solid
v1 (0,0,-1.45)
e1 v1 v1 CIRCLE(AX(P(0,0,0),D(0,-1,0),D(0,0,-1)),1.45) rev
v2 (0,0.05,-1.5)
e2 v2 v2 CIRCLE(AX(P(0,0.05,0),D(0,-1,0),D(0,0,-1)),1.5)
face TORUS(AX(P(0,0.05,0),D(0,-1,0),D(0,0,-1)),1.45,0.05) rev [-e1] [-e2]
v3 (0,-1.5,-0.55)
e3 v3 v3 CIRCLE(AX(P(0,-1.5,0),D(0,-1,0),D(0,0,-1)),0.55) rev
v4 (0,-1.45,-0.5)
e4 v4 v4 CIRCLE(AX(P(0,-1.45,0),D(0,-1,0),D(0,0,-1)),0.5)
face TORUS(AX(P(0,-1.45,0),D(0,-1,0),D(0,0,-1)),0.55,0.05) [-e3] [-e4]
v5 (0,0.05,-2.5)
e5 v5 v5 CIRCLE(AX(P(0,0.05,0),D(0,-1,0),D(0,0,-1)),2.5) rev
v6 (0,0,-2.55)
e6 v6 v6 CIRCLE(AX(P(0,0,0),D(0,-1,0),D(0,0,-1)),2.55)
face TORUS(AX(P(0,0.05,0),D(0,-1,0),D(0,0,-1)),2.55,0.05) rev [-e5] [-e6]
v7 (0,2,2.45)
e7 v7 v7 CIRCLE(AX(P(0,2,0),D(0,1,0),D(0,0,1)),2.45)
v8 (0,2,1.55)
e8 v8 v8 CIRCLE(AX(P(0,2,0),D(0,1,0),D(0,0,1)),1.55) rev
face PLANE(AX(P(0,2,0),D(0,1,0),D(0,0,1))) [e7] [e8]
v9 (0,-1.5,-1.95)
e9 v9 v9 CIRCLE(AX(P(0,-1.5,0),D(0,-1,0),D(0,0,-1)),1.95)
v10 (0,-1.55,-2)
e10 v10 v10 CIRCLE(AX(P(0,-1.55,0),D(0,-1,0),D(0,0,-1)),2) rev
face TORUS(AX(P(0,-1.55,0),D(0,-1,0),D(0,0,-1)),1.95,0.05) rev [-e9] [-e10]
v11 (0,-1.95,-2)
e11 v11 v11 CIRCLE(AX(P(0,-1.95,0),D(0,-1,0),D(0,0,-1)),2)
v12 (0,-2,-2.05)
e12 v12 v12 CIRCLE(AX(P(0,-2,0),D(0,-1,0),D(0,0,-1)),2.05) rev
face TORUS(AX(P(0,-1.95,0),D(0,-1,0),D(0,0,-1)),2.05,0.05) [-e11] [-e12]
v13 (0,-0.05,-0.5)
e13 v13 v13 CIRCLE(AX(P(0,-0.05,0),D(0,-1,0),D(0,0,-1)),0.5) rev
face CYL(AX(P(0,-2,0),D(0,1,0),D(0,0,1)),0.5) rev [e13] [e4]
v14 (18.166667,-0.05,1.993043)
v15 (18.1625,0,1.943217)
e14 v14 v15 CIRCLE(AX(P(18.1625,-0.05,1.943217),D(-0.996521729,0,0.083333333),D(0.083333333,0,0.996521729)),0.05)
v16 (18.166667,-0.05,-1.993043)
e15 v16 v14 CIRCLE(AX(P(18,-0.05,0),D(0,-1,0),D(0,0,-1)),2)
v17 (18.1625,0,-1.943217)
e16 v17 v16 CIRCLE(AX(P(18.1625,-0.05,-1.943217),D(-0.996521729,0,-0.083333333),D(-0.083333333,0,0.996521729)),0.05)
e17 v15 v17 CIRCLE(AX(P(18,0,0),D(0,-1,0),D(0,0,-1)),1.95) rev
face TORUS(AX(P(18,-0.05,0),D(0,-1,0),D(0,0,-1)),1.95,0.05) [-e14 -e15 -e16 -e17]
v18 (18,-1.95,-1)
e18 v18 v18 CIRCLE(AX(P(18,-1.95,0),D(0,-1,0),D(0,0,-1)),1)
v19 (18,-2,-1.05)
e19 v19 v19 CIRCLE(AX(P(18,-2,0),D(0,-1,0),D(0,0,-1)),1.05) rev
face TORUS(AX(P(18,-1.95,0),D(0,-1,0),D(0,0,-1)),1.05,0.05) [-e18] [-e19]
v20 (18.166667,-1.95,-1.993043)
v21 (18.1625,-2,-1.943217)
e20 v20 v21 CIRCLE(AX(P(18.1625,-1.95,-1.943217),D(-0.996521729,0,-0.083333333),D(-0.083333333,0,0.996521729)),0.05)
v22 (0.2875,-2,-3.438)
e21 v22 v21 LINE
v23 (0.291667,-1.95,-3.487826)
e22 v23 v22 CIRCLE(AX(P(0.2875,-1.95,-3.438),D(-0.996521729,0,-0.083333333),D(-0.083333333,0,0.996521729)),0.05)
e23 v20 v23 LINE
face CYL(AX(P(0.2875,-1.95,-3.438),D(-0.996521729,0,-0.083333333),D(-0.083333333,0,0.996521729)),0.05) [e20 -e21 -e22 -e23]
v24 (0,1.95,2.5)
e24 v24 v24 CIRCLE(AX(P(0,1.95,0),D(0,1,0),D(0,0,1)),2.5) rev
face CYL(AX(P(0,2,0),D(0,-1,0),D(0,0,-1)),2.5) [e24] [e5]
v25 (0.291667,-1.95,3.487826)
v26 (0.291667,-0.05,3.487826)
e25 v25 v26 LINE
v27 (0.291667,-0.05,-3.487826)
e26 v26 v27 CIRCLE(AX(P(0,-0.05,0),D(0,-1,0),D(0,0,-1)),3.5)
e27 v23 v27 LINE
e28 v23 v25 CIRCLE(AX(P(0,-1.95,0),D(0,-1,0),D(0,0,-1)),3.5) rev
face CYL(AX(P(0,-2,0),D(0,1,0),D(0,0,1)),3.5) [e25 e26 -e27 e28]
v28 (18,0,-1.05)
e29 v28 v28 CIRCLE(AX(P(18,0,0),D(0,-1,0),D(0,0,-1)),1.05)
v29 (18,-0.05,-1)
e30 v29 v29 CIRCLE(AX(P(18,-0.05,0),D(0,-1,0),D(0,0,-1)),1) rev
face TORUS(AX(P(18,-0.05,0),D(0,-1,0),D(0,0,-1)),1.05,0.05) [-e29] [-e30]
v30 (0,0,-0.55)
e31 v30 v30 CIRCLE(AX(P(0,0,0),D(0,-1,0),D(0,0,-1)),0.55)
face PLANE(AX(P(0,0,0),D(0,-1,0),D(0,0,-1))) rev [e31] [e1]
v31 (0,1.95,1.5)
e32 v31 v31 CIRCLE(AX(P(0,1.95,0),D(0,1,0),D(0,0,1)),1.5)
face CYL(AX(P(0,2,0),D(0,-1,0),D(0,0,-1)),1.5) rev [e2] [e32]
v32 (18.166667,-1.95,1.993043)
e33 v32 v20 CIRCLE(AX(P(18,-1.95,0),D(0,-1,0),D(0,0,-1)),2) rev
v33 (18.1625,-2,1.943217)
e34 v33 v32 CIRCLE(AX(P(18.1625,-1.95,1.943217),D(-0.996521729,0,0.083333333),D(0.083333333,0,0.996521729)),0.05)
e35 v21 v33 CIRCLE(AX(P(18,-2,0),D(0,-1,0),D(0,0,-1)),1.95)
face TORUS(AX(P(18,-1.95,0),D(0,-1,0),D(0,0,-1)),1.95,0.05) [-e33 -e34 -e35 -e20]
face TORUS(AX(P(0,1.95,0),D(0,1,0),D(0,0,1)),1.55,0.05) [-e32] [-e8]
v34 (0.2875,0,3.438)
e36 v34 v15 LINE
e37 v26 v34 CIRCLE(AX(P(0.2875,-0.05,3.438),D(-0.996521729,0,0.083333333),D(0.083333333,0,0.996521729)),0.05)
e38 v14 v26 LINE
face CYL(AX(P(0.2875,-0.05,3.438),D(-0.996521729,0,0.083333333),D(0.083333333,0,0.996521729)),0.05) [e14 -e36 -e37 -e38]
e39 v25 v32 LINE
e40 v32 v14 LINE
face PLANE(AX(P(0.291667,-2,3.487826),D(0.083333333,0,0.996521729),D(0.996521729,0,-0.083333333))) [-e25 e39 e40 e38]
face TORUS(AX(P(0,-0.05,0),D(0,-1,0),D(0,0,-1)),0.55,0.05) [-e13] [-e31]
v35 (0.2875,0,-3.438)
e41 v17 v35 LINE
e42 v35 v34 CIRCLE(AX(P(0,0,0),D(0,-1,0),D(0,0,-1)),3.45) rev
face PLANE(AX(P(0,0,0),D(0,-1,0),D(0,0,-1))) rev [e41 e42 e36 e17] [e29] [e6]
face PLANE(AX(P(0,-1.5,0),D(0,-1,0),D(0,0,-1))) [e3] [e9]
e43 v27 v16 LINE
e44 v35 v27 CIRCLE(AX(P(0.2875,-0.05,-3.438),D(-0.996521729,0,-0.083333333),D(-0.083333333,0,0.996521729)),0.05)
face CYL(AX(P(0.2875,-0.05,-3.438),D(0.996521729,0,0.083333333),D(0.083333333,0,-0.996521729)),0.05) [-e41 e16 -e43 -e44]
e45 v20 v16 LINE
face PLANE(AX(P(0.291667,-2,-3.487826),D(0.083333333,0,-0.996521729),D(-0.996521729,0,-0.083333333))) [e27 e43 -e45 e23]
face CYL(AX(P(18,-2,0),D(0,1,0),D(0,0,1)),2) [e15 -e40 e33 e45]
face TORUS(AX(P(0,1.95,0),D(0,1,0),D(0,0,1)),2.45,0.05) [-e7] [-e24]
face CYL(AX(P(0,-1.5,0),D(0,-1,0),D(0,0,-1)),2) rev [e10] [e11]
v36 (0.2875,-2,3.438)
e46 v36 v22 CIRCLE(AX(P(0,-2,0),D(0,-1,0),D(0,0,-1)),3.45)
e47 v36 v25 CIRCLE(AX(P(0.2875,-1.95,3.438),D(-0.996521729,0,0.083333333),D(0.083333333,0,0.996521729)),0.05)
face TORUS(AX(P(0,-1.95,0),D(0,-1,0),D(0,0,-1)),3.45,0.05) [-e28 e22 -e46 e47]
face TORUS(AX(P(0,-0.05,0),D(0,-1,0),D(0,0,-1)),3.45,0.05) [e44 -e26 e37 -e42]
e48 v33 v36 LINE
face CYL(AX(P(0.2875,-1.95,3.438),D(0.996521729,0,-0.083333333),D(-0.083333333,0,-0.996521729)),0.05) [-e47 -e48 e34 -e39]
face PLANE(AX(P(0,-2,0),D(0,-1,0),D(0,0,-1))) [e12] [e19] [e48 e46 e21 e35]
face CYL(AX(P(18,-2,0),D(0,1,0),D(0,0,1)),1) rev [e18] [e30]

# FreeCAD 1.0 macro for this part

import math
import FreeCAD as App
import Part
import Sketcher

V = App.Vector
Q = App.Units.Quantity


def edges_at(feature, points):
    """Names of the edges that pass closest to the given points."""
    edges = feature.Shape.Edges
    near = lambda p: min(range(len(edges)), key=lambda i: edges[i].distToShape(Part.Vertex(*p))[0])
    return sorted({f"Edge{near(p) + 1}" for p in points})

doc = App.newDocument("Part")
body = doc.addObject("PartDesign::Body", "Body")

# Sketch on XZ plane
sketch1 = doc.addObject("Sketcher::SketchObject", "Sketch")
body.addObject(sketch1)
sketch1.AttachmentSupport = (doc.XZ_Plane, [""])
sketch1.MapMode = "FlatFace"
sketch1.addGeometry([
    Part.Circle(V(0, 0, 0), V(0, 0, 1), 2.5),
    Part.Circle(V(0, 0, 0), V(0, 0, 1), 1.5),
], False)
sketch1.addConstraint([
    Sketcher.Constraint("Coincident", 0, 3, -1, 1),
    Sketcher.Constraint("Coincident", 1, 3, -1, 1),
    Sketcher.Constraint("Diameter", 0, Q("5 mm")),
    Sketcher.Constraint("Diameter", 1, Q("3 mm")),
])
pad1 = doc.addObject("PartDesign::Pad", "Pad")
body.addObject(pad1)
pad1.Profile = sketch1
pad1.Length = 2
pad1.Reversed = True

# Sketch on XZ plane
sketch2 = doc.addObject("Sketcher::SketchObject", "Sketch001")
body.addObject(sketch2)
sketch2.AttachmentSupport = (doc.XZ_Plane, [""])
sketch2.MapMode = "FlatFace"
sketch2.addGeometry([
    Part.LineSegment(V(18.2, -2, 0), V(0.3, -3.5, 0)),  # 0
    Part.ArcOfCircle(Part.Circle(V(0, 0, 0), V(0, 0, 1), 3.5), math.radians(85), math.radians(275)),  # 1
    Part.LineSegment(V(0.3, 3.5, 0), V(18.2, 2, 0)),  # 2
    Part.ArcOfCircle(Part.Circle(V(18, 0, 0), V(0, 0, 1), 2), math.radians(-85), math.radians(85)),  # 3
    Part.Circle(V(18, 0, 0), V(0, 0, 1), 1),  # 4
    Part.Circle(V(0, 0, 0), V(0, 0, 1), 0.5),  # 5
], False)
sketch2.addConstraint([
    Sketcher.Constraint("Tangent", 0, 2, 1, 2),
    Sketcher.Constraint("Tangent", 1, 1, 2, 1),
    Sketcher.Constraint("Tangent", 2, 2, 3, 2),
    Sketcher.Constraint("Tangent", 3, 1, 0, 1),
    Sketcher.Constraint("Coincident", 1, 3, -1, 1),
    Sketcher.Constraint("Coincident", 5, 3, -1, 1),
    Sketcher.Constraint("Coincident", 4, 3, 3, 3),
    Sketcher.Constraint("PointOnObject", 3, 3, -1),
    Sketcher.Constraint("Diameter", 4, Q("2 mm")),
    Sketcher.Constraint("Diameter", 5, Q("1 mm")),
    Sketcher.Constraint("Radius", 3, Q("2 mm")),
    Sketcher.Constraint("Radius", 1, Q("3.5 mm")),
    Sketcher.Constraint("DistanceX", -1, 1, 3, 3, Q("18 mm")),
])
pad2 = doc.addObject("PartDesign::Pad", "Pad001")
body.addObject(pad2)
pad2.Profile = sketch2
pad2.Length = 2

# Sketch on XZ plane
sketch3 = doc.addObject("Sketcher::SketchObject", "Sketch002")
body.addObject(sketch3)
sketch3.AttachmentSupport = (doc.XZ_Plane, [""])
sketch3.MapMode = "FlatFace"
sketch3.AttachmentOffset = App.Placement(V(0, 0, 1.5), App.Rotation())
sketch3.addGeometry([
    Part.Circle(V(0, 0, 0), V(0, 0, 1), 2),
    Part.Circle(V(0, 0, 0), V(0, 0, 1), 0.5),
], False)
sketch3.addConstraint([
    Sketcher.Constraint("Coincident", 0, 3, -1, 1),
    Sketcher.Constraint("Coincident", 1, 3, -1, 1),
    Sketcher.Constraint("Diameter", 0, Q("4 mm")),
    Sketcher.Constraint("Diameter", 1, Q("1 mm")),
])
pocket1 = doc.addObject("PartDesign::Pocket", "Pocket")
body.addObject(pocket1)
pocket1.Profile = sketch3
pocket1.Length = 0.5
pocket1.Reversed = True
doc.recompute()

fillet = doc.addObject("PartDesign::Fillet", "Fillet")
body.addObject(fillet)
fillet.Base = (pocket1, edges_at(pocket1, [
    (0, 0, -2.5),
    (-3.5, -2, 0),
    (9.229, -2, -2.74),
    (20, -2, 0),
    (9.229, -2, 2.74),
    (18, -2, -1),
    (-3.5, 0, 0),
    (9.229, 0, 2.74),
    (20, 0, 0),
    (9.229, 0, -2.74),
    (18, 0, -1),
    (0, 0, -0.5),
    (0, -1.5, 2),
    (0, -1.5, -0.5),
    (0, -2, 2),
    (0, 2, -2.5),
    (0, 0, -1.5),
    (0, 2, -1.5),
]))
fillet.Radius = 0.05

doc.recompute()
